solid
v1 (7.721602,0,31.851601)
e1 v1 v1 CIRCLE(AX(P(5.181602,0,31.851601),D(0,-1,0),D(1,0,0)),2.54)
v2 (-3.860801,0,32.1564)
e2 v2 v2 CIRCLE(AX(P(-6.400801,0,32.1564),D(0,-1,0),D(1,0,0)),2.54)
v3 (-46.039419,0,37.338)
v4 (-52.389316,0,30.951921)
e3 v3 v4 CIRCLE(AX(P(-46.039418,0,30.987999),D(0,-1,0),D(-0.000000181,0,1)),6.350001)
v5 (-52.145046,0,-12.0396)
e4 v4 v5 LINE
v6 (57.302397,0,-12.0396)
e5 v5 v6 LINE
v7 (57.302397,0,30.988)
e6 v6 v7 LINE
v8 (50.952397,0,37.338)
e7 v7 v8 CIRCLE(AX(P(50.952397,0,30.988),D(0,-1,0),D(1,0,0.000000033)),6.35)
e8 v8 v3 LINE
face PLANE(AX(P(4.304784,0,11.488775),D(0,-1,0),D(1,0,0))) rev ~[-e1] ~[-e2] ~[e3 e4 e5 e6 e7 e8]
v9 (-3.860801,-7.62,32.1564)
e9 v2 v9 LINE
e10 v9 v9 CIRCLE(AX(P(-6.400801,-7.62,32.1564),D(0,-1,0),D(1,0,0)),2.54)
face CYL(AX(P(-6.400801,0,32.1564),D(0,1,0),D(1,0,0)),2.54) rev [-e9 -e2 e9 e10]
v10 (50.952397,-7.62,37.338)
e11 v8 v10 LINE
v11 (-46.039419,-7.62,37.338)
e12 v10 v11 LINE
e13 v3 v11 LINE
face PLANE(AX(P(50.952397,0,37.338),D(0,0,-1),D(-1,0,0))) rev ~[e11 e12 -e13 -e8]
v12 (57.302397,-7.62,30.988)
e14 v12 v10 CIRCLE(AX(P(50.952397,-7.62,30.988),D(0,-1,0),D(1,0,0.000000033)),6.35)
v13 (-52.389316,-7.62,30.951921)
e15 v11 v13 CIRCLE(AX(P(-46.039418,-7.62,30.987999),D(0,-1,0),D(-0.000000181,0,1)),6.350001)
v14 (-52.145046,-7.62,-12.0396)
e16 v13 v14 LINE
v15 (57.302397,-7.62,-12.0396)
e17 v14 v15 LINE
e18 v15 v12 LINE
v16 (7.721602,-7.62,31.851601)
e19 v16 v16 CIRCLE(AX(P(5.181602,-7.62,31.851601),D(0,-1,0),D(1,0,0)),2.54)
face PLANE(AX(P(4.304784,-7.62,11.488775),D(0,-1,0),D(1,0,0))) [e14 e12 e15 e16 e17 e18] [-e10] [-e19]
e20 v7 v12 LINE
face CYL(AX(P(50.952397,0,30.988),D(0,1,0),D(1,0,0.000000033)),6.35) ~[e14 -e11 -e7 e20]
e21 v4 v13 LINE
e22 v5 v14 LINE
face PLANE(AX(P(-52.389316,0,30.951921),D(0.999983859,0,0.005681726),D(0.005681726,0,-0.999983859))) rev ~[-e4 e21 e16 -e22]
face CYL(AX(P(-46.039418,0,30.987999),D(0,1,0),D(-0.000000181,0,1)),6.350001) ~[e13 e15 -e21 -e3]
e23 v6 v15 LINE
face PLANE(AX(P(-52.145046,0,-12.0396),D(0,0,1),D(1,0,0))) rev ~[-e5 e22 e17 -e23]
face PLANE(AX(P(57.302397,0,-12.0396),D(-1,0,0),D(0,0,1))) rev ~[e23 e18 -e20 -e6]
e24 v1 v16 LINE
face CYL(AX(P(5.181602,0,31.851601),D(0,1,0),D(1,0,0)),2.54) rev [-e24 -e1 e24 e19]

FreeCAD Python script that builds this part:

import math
import FreeCAD as App
import Part
import Sketcher

V = App.Vector
Q = App.Units.Quantity

doc = App.newDocument("Part")
params = doc.addObject("Spreadsheet::Sheet", "Params")
for row, (alias, value) in enumerate([
    ("sketch1_diameter", "0.2 in"),
    ("sketch1_radius", "0.25 in"),
    ("sketch1_height", "1.694 in"),
    ("pad1_length", "0.3 in"),
], start=1):
    params.set(f"A{row}", alias)
    params.set(f"B{row}", "=" + value)
    params.setAlias(f"B{row}", alias)

body = doc.addObject("PartDesign::Body", "Body")

# Sketch on XZ plane
sketch1 = body.newObject("Sketcher::SketchObject", "Sketch")
sketch1.AttachmentSupport = (doc.getObject("XZ_Plane"), [""])
sketch1.MapMode = "FlatFace"
sketch1.addGeometry([
    Part.LineSegment(V(51, 37.3, 0), V(-46, 37.3, 0)),  # 0
    Part.ArcOfCircle(Part.Circle(V(-46, 31, 0), V(0, 0, 1), 6.4), math.radians(90), math.radians(180)),  # 1
    Part.LineSegment(V(-52.4, 31, 0), V(-52.1, -12, 0)),  # 2
    Part.LineSegment(V(-52.1, -12, 0), V(57.3, -12, 0)),  # 3
    Part.LineSegment(V(57.3, -12, 0), V(57.3, 31, 0)),  # 4
    Part.ArcOfCircle(Part.Circle(V(51, 31, 0), V(0, 0, 1), 6.4), math.radians(0), math.radians(90)),  # 5
    Part.Circle(V(5.2, 31.9, 0), V(0, 0, 1), 2.5),  # 6
    Part.Circle(V(-6.4, 32.2, 0), V(0, 0, 1), 2.5),  # 7
], False)
sketch1.addConstraint([
    Sketcher.Constraint("Tangent", 0, 2, 1, 1),
    Sketcher.Constraint("Tangent", 1, 2, 2, 1),
    Sketcher.Constraint("Coincident", 2, 2, 3, 1),
    Sketcher.Constraint("Coincident", 3, 2, 4, 1),
    Sketcher.Constraint("Tangent", 4, 2, 5, 1),
    Sketcher.Constraint("Tangent", 5, 2, 0, 1),
    Sketcher.Constraint("Horizontal", 0),
    Sketcher.Constraint("Horizontal", 3),
    Sketcher.Constraint("Vertical", 4),
    Sketcher.Constraint("Equal", 1, 5),
    Sketcher.Constraint("Equal", 6, 7),
    Sketcher.Constraint("Diameter", 6, Q("0.2 in")),
    Sketcher.Constraint("Radius", 1, Q("0.25 in")),
    Sketcher.Constraint("DistanceY", 4, 1, 4, 2, Q("1.694 in")),
    Sketcher.Constraint("DistanceY", -1, 1, 1, 3, Q("1.22 in")),
    Sketcher.Constraint("DistanceY", 2, 2, 7, 3, Q("1.74 in")),
    Sketcher.Constraint("DistanceX", -1, 1, 5, 3, Q("2.0059999 in")),
    Sketcher.Constraint("DistanceX", -1, 1, 6, 3, Q("0.2040001 in")),
    Sketcher.Constraint("DistanceY", -1, 1, 6, 3, Q("1.254 in")),
    Sketcher.Constraint("DistanceX", 7, 3, -1, 1, Q("0.252 in")),
    Sketcher.Constraint("DistanceX", 0, 2, 0, 1, Q("96.991816 mm")),
    Sketcher.Constraint("DistanceX", 3, 1, 3, 2, Q("109.447443 mm")),
])
sketch1.setExpression("Constraints[11]", "Params.sketch1_diameter")
sketch1.setExpression("Constraints[12]", "Params.sketch1_radius")
sketch1.setExpression("Constraints[13]", "Params.sketch1_height")
pad1 = body.newObject("PartDesign::Pad", "Pad")
pad1.Profile = sketch1
pad1.setExpression("Length", "Params.pad1_length")

doc.recompute()
